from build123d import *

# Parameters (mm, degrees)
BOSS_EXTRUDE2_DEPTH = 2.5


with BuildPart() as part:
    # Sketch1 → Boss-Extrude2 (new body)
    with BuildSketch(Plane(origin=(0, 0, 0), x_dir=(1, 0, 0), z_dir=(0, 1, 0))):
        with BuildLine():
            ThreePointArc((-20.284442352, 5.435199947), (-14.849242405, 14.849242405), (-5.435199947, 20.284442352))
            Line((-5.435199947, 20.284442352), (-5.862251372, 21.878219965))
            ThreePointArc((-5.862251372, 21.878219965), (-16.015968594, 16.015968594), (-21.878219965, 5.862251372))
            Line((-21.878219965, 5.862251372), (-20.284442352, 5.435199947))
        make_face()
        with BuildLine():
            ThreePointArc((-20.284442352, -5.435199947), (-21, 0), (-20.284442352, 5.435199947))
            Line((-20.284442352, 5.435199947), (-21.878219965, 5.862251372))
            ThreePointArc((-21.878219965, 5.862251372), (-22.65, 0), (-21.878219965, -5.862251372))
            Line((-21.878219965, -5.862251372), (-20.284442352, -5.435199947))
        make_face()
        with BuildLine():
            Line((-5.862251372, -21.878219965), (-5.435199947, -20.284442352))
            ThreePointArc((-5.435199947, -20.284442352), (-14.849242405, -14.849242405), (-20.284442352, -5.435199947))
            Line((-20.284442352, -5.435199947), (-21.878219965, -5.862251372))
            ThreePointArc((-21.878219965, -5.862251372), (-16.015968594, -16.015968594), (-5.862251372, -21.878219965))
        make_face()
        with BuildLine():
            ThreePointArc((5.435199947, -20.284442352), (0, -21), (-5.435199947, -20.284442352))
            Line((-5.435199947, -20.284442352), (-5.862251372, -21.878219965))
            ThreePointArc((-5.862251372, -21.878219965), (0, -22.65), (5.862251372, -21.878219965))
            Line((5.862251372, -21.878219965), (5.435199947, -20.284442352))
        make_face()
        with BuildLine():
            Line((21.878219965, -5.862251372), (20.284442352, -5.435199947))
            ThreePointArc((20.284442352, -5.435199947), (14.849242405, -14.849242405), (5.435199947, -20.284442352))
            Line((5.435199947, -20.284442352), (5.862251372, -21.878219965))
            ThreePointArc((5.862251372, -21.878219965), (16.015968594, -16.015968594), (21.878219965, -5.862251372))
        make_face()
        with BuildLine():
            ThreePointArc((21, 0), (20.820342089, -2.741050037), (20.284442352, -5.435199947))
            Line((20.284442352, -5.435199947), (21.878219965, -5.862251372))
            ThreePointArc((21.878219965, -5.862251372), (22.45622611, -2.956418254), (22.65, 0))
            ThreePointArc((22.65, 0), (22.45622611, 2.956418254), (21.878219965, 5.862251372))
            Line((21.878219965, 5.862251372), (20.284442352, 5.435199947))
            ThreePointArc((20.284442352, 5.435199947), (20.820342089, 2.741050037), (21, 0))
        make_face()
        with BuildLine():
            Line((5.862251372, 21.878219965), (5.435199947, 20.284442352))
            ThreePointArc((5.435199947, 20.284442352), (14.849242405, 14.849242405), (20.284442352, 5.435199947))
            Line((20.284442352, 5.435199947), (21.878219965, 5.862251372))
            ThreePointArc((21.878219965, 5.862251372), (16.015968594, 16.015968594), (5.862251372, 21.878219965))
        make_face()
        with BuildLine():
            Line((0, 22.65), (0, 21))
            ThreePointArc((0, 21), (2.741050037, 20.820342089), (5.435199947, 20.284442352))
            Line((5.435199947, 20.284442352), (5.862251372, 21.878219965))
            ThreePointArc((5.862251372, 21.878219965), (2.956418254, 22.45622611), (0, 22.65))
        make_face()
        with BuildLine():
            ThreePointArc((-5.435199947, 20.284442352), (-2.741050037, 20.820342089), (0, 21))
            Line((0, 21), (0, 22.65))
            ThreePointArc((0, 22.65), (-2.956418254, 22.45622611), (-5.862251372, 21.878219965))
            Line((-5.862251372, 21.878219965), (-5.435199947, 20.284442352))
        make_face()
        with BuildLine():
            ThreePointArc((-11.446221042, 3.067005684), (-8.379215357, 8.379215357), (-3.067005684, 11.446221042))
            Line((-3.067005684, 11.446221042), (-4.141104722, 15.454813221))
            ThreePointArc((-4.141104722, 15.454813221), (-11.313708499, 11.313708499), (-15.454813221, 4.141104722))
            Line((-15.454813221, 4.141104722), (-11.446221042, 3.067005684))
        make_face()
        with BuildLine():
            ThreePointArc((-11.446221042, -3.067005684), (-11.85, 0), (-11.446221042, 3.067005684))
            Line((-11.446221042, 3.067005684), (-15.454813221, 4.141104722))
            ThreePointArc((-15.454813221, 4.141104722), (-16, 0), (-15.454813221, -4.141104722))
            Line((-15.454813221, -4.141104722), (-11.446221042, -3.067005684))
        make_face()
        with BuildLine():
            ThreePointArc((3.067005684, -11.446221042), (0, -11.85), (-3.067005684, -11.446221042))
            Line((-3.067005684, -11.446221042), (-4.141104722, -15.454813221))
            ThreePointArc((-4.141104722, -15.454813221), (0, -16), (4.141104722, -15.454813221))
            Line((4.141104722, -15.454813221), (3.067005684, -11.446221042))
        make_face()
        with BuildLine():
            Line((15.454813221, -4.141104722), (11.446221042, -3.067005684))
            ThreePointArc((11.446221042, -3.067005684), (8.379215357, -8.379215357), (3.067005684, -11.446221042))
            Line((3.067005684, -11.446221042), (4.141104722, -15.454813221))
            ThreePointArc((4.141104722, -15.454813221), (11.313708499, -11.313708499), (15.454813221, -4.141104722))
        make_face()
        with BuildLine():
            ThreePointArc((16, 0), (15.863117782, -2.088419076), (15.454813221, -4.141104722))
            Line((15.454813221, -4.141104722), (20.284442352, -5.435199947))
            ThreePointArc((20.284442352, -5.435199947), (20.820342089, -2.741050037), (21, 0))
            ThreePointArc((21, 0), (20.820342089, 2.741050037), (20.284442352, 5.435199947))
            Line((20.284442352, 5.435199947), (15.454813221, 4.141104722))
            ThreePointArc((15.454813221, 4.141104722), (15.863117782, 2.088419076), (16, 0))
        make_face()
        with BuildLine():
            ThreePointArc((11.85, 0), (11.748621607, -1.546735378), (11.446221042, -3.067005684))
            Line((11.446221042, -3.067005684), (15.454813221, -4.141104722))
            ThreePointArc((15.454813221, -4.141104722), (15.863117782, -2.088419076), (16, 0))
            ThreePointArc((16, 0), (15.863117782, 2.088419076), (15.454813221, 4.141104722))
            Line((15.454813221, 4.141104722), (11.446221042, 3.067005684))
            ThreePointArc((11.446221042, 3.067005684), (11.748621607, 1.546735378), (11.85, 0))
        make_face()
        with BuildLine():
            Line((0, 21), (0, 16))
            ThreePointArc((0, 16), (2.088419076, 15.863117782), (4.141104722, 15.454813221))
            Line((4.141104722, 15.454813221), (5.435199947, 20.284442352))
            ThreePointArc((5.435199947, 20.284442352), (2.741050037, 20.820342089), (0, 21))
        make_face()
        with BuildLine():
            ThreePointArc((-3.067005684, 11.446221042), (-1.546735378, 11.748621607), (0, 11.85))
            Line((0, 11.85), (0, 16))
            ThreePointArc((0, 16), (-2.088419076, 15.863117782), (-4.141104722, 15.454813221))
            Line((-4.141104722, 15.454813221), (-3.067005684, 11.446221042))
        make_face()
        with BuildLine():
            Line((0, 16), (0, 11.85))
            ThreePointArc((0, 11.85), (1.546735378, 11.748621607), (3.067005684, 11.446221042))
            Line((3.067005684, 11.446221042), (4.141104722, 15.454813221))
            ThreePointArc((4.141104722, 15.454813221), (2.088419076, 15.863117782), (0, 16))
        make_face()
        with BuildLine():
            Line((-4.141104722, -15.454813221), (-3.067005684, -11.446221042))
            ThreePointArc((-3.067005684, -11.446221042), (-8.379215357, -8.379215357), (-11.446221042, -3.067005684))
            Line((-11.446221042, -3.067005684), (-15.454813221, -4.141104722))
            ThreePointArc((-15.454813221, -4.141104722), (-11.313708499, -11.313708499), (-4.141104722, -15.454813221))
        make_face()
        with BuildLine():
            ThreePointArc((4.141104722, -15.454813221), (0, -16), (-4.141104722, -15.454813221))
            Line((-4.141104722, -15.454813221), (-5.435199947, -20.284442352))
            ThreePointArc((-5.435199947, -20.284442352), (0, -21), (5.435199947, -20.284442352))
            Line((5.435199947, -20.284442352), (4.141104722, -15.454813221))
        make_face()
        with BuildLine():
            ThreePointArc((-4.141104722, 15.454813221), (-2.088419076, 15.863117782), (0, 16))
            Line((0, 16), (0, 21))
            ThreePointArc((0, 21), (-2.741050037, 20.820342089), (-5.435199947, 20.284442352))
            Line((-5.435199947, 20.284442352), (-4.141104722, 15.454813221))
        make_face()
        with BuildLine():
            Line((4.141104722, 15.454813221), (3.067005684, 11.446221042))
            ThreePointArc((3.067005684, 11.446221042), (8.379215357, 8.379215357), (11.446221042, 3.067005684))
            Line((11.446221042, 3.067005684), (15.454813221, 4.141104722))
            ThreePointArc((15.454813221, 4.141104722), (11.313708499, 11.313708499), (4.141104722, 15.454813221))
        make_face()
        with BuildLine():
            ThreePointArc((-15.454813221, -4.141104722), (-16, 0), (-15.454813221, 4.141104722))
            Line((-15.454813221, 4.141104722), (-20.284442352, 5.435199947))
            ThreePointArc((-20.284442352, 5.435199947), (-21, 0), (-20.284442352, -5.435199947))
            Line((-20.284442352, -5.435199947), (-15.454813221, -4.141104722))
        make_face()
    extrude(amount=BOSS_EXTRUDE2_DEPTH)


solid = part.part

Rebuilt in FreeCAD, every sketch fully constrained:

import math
import FreeCAD as App
import Part
import Sketcher
from FreeCAD import Vector
Q = App.Units.Quantity

doc = App.newDocument("Part")
body = doc.addObject("PartDesign::Body", "Body")

# Sketch on XZ plane
sketch1 = body.newObject("Sketcher::SketchObject", "Sketch")
sketch1.AttachmentSupport = (doc.getObject("XZ_Plane"), [""])
sketch1.MapMode = "FlatFace"
sketch1.addGeometry(Part.ArcOfCircle(Part.Circle(Vector(0, 0, 0), Vector(0, 0, 1), 22.6), math.radians(-165), math.radians(-105)), False)
sketch1.addGeometry(Part.ArcOfCircle(Part.Circle(Vector(0, 0, 0), Vector(0, 0, 1), 22.6), math.radians(165), math.radians(195)), False)
sketch1.addGeometry(Part.ArcOfCircle(Part.Circle(Vector(0, 0, 0), Vector(0, 0, 1), 22.6), math.radians(105), math.radians(165)), False)
sketch1.addGeometry(Part.ArcOfCircle(Part.Circle(Vector(0, 0, 0), Vector(0, 0, 1), 22.6), math.radians(75), math.radians(105)), False)
sketch1.addGeometry(Part.ArcOfCircle(Part.Circle(Vector(0, 0, 0), Vector(0, 0, 1), 22.6), math.radians(15), math.radians(75)), False)
sketch1.addGeometry(Part.ArcOfCircle(Part.Circle(Vector(0, 0, 0), Vector(0, 0, 1), 22.6), math.radians(0), math.radians(15)), False)
sketch1.addGeometry(Part.ArcOfCircle(Part.Circle(Vector(0, 0, 0), Vector(0, 0, 1), 22.6), math.radians(-15), math.radians(0)), False)
sketch1.addGeometry(Part.ArcOfCircle(Part.Circle(Vector(0, 0, 0), Vector(0, 0, 1), 22.6), math.radians(-75), math.radians(-15)), False)
sketch1.addGeometry(Part.ArcOfCircle(Part.Circle(Vector(0, 0, 0), Vector(0, 0, 1), 22.6), math.radians(-90), math.radians(-75)), False)
sketch1.addGeometry(Part.ArcOfCircle(Part.Circle(Vector(0, 0, 0), Vector(0, 0, 1), 22.6), math.radians(-105), math.radians(-90)), False)
sketch1.addGeometry(Part.ArcOfCircle(Part.Circle(Vector(0, 0, 0), Vector(0, 0, 1), 21), math.radians(-165), math.radians(-105)), False)
sketch1.addGeometry(Part.LineSegment(Vector(-5.4, -20.3, 0), Vector(-4.1, -15.5, 0)), False)
sketch1.addGeometry(Part.ArcOfCircle(Part.Circle(Vector(0, 0, 0), Vector(0, 0, 1), 16), math.radians(-165), math.radians(-105)), False)
sketch1.addGeometry(Part.LineSegment(Vector(-15.5, -4.1, 0), Vector(-20.3, -5.4, 0)), False)
sketch1.addGeometry(Part.ArcOfCircle(Part.Circle(Vector(0, 0, 0), Vector(0, 0, 1), 16), math.radians(105), math.radians(165)), False)
sketch1.addGeometry(Part.LineSegment(Vector(-4.1, 15.5, 0), Vector(-5.4, 20.3, 0)), False)
sketch1.addGeometry(Part.ArcOfCircle(Part.Circle(Vector(0, 0, 0), Vector(0, 0, 1), 21), math.radians(105), math.radians(165)), False)
sketch1.addGeometry(Part.LineSegment(Vector(-20.3, 5.4, 0), Vector(-15.5, 4.1, 0)), False)
sketch1.addGeometry(Part.ArcOfCircle(Part.Circle(Vector(0, 0, 0), Vector(0, 0, 1), 16), math.radians(15), math.radians(75)), False)
sketch1.addGeometry(Part.LineSegment(Vector(15.5, 4.1, 0), Vector(20.3, 5.4, 0)), False)
sketch1.addGeometry(Part.ArcOfCircle(Part.Circle(Vector(0, 0, 0), Vector(0, 0, 1), 21), math.radians(15), math.radians(75)), False)
sketch1.addGeometry(Part.LineSegment(Vector(5.4, 20.3, 0), Vector(4.1, 15.5, 0)), False)
sketch1.addGeometry(Part.ArcOfCircle(Part.Circle(Vector(0, 0, 0), Vector(0, 0, 1), 11.9), math.radians(165), math.radians(195)), False)
sketch1.addGeometry(Part.ArcOfCircle(Part.Circle(Vector(0, 0, 0), Vector(0, 0, 1), 11.9), math.radians(-165), math.radians(-105)), False)
sketch1.addGeometry(Part.ArcOfCircle(Part.Circle(Vector(0, 0, 0), Vector(0, 0, 1), 11.9), math.radians(-105), math.radians(-90)), False)
sketch1.addGeometry(Part.ArcOfCircle(Part.Circle(Vector(0, 0, 0), Vector(0, 0, 1), 11.9), math.radians(-90), math.radians(-75)), False)
sketch1.addGeometry(Part.ArcOfCircle(Part.Circle(Vector(0, 0, 0), Vector(0, 0, 1), 11.9), math.radians(-75), math.radians(-15)), False)
sketch1.addGeometry(Part.ArcOfCircle(Part.Circle(Vector(0, 0, 0), Vector(0, 0, 1), 11.9), math.radians(-15), math.radians(0)), False)
sketch1.addGeometry(Part.ArcOfCircle(Part.Circle(Vector(0, 0, 0), Vector(0, 0, 1), 11.9), math.radians(0), math.radians(15)), False)
sketch1.addGeometry(Part.ArcOfCircle(Part.Circle(Vector(0, 0, 0), Vector(0, 0, 1), 11.9), math.radians(15), math.radians(75)), False)
sketch1.addGeometry(Part.ArcOfCircle(Part.Circle(Vector(0, 0, 0), Vector(0, 0, 1), 11.9), math.radians(75), math.radians(105)), False)
sketch1.addGeometry(Part.ArcOfCircle(Part.Circle(Vector(0, 0, 0), Vector(0, 0, 1), 11.9), math.radians(105), math.radians(165)), False)
sketch1.addGeometry(Part.LineSegment(Vector(4.1, -15.5, 0), Vector(5.4, -20.3, 0)), False)
sketch1.addGeometry(Part.ArcOfCircle(Part.Circle(Vector(0, 0, 0), Vector(0, 0, 1), 21), math.radians(-75), math.radians(-15)), False)
sketch1.addGeometry(Part.LineSegment(Vector(20.3, -5.4, 0), Vector(15.5, -4.1, 0)), False)
sketch1.addGeometry(Part.ArcOfCircle(Part.Circle(Vector(0, 0, 0), Vector(0, 0, 1), 16), math.radians(-75), math.radians(-15)), False)
sketch1.addConstraint(Sketcher.Constraint("Tangent", 0, 1, 1, 2))
sketch1.addConstraint(Sketcher.Constraint("Tangent", 1, 1, 2, 2))
sketch1.addConstraint(Sketcher.Constraint("Tangent", 2, 1, 3, 2))
sketch1.addConstraint(Sketcher.Constraint("Tangent", 3, 1, 4, 2))
sketch1.addConstraint(Sketcher.Constraint("Tangent", 4, 1, 5, 2))
sketch1.addConstraint(Sketcher.Constraint("Tangent", 5, 1, 6, 2))
sketch1.addConstraint(Sketcher.Constraint("Tangent", 6, 1, 7, 2))
sketch1.addConstraint(Sketcher.Constraint("Tangent", 7, 1, 8, 2))
sketch1.addConstraint(Sketcher.Constraint("Tangent", 8, 1, 9, 2))
sketch1.addConstraint(Sketcher.Constraint("Tangent", 9, 1, 0, 2))
sketch1.addConstraint(Sketcher.Constraint("Coincident", 10, 2, 11, 1))
sketch1.addConstraint(Sketcher.Constraint("Coincident", 11, 2, 12, 2))
sketch1.addConstraint(Sketcher.Constraint("Coincident", 12, 1, 13, 1))
sketch1.addConstraint(Sketcher.Constraint("Coincident", 13, 2, 10, 1))
sketch1.addConstraint(Sketcher.Constraint("Coincident", 14, 1, 15, 1))
sketch1.addConstraint(Sketcher.Constraint("Coincident", 15, 2, 16, 1))
sketch1.addConstraint(Sketcher.Constraint("Coincident", 16, 2, 17, 1))
sketch1.addConstraint(Sketcher.Constraint("Coincident", 17, 2, 14, 2))
sketch1.addConstraint(Sketcher.Constraint("Coincident", 18, 1, 19, 1))
sketch1.addConstraint(Sketcher.Constraint("Coincident", 19, 2, 20, 1))
sketch1.addConstraint(Sketcher.Constraint("Coincident", 20, 2, 21, 1))
sketch1.addConstraint(Sketcher.Constraint("Coincident", 21, 2, 18, 2))
sketch1.addConstraint(Sketcher.Constraint("Tangent", 22, 2, 23, 1))
sketch1.addConstraint(Sketcher.Constraint("Tangent", 23, 2, 24, 1))
sketch1.addConstraint(Sketcher.Constraint("Tangent", 24, 2, 25, 1))
sketch1.addConstraint(Sketcher.Constraint("Tangent", 25, 2, 26, 1))
sketch1.addConstraint(Sketcher.Constraint("Tangent", 26, 2, 27, 1))
sketch1.addConstraint(Sketcher.Constraint("Tangent", 27, 2, 28, 1))
sketch1.addConstraint(Sketcher.Constraint("Tangent", 28, 2, 29, 1))
sketch1.addConstraint(Sketcher.Constraint("Tangent", 29, 2, 30, 1))
sketch1.addConstraint(Sketcher.Constraint("Tangent", 30, 2, 31, 1))
sketch1.addConstraint(Sketcher.Constraint("Tangent", 31, 2, 22, 1))
sketch1.addConstraint(Sketcher.Constraint("Coincident", 32, 2, 33, 1))
sketch1.addConstraint(Sketcher.Constraint("Coincident", 33, 2, 34, 1))
sketch1.addConstraint(Sketcher.Constraint("Coincident", 34, 2, 35, 2))
sketch1.addConstraint(Sketcher.Constraint("Coincident", 35, 1, 32, 1))
sketch1.addConstraint(Sketcher.Constraint("Coincident", 0, 3, -1, 1))
sketch1.addConstraint(Sketcher.Constraint("Coincident", 2, 3, -1, 1))
sketch1.addConstraint(Sketcher.Constraint("Coincident", 4, 3, -1, 1))
sketch1.addConstraint(Sketcher.Constraint("Coincident", 6, 3, -1, 1))
sketch1.addConstraint(Sketcher.Constraint("Coincident", 10, 3, -1, 1))
sketch1.addConstraint(Sketcher.Constraint("Coincident", 12, 3, -1, 1))
sketch1.addConstraint(Sketcher.Constraint("Coincident", 14, 3, -1, 1))
sketch1.addConstraint(Sketcher.Constraint("Coincident", 16, 3, -1, 1))
sketch1.addConstraint(Sketcher.Constraint("Coincident", 18, 3, -1, 1))
sketch1.addConstraint(Sketcher.Constraint("Coincident", 20, 3, -1, 1))
sketch1.addConstraint(Sketcher.Constraint("Coincident", 22, 3, -1, 1))
sketch1.addConstraint(Sketcher.Constraint("Coincident", 24, 3, -1, 1))
sketch1.addConstraint(Sketcher.Constraint("Coincident", 26, 3, -1, 1))
sketch1.addConstraint(Sketcher.Constraint("Coincident", 28, 3, -1, 1))
sketch1.addConstraint(Sketcher.Constraint("Coincident", 33, 3, -1, 1))
sketch1.addConstraint(Sketcher.Constraint("Coincident", 35, 3, -1, 1))
sketch1.addConstraint(Sketcher.Constraint("Equal", 6, 7))
sketch1.addConstraint(Sketcher.Constraint("Equal", 12, 14))
sketch1.addConstraint(Sketcher.Constraint("Equal", 10, 16))
sketch1.addConstraint(Sketcher.Constraint("Equal", 14, 18))
sketch1.addConstraint(Sketcher.Constraint("Equal", 16, 20))
sketch1.addConstraint(Sketcher.Constraint("Equal", 28, 29))
sketch1.addConstraint(Sketcher.Constraint("Equal", 20, 33))
sketch1.addConstraint(Sketcher.Constraint("Equal", 18, 35))
sketch1.addConstraint(Sketcher.Constraint("PointOnObject", 5, 1, -1))
sketch1.addConstraint(Sketcher.Constraint("PointOnObject", 8, 1, -2))
sketch1.addConstraint(Sketcher.Constraint("PointOnObject", 24, 2, -2))
sketch1.addConstraint(Sketcher.Constraint("PointOnObject", 27, 2, -1))
sketch1.addConstraint(Sketcher.Constraint("Perpendicular", 13, 15))
sketch1.addConstraint(Sketcher.Constraint("Perpendicular", 11, 17))
sketch1.addConstraint(Sketcher.Constraint("Perpendicular", 15, 19))
sketch1.addConstraint(Sketcher.Constraint("Perpendicular", 17, 21))
sketch1.addConstraint(Sketcher.Constraint("Perpendicular", 19, 32))
sketch1.addConstraint(Sketcher.Constraint("Perpendicular", 21, 34))
sketch1.addConstraint(Sketcher.Constraint("Horizontal", 2, 1, 3, 1))
sketch1.addConstraint(Sketcher.Constraint("Horizontal", 1, 1, 4, 1))
sketch1.addConstraint(Sketcher.Constraint("Horizontal", 0, 1, 6, 1))
sketch1.addConstraint(Sketcher.Constraint("Horizontal", 7, 1, 9, 1))
sketch1.addConstraint(Sketcher.Constraint("Horizontal", 17, 2, 18, 1))
sketch1.addConstraint(Sketcher.Constraint("Horizontal", 16, 2, 19, 2))
sketch1.addConstraint(Sketcher.Constraint("Horizontal", 15, 2, 20, 2))
sketch1.addConstraint(Sketcher.Constraint("Horizontal", 23, 2, 25, 2))
sketch1.addConstraint(Sketcher.Constraint("Horizontal", 22, 2, 26, 2))
sketch1.addConstraint(Sketcher.Constraint("Horizontal", 29, 2, 30, 2))
sketch1.addConstraint(Sketcher.Constraint("Horizontal", 28, 2, 31, 2))
sketch1.addConstraint(Sketcher.Constraint("Horizontal", 10, 2, 32, 2))
sketch1.addConstraint(Sketcher.Constraint("Horizontal", 13, 2, 33, 2))
sketch1.addConstraint(Sketcher.Constraint("Vertical", 0, 1, 1, 1))
sketch1.addConstraint(Sketcher.Constraint("Vertical", 3, 1, 7, 1))
sketch1.addConstraint(Sketcher.Constraint("Vertical", 11, 2, 14, 1))
sketch1.addConstraint(Sketcher.Constraint("Vertical", 13, 2, 16, 2))
sketch1.addConstraint(Sketcher.Constraint("Vertical", 26, 2, 28, 2))
sketch1.addConstraint(Sketcher.Constraint("Vertical", 25, 2, 29, 2))
sketch1.addConstraint(Sketcher.Constraint("Radius", 10, 21.0))
sketch1.addConstraint(Sketcher.Constraint("Radius", 12, 16.0))
sketch1.addConstraint(Sketcher.Constraint("Angle", 11, Q("75 deg")))
sketch1.addConstraint(Sketcher.Constraint("Radius", 0, 22.65))
sketch1.addConstraint(Sketcher.Constraint("Radius", 22, 11.85))
sketch1.addConstraint(Sketcher.Constraint("DistanceX", 10, 2, -1, 1, 5.4352))
sketch1.addConstraint(Sketcher.Constraint("DistanceY", 13, 2, -1, 1, 5.4352))
sketch1.addConstraint(Sketcher.Constraint("DistanceX", 0, 1, -1, 1, 21.87822))
sketch1.addConstraint(Sketcher.Constraint("DistanceX", 2, 1, -1, 1, 5.862251))
sketch1.addConstraint(Sketcher.Constraint("DistanceX", 22, 2, -1, 1, 11.446221))
sketch1.addConstraint(Sketcher.Constraint("DistanceY", 23, 2, -1, 1, 11.446221))
pad1 = body.newObject("PartDesign::Pad", "Pad")
pad1.Profile = sketch1
pad1.Length = 2.5
pad1.Reversed = True

doc.recompute()
